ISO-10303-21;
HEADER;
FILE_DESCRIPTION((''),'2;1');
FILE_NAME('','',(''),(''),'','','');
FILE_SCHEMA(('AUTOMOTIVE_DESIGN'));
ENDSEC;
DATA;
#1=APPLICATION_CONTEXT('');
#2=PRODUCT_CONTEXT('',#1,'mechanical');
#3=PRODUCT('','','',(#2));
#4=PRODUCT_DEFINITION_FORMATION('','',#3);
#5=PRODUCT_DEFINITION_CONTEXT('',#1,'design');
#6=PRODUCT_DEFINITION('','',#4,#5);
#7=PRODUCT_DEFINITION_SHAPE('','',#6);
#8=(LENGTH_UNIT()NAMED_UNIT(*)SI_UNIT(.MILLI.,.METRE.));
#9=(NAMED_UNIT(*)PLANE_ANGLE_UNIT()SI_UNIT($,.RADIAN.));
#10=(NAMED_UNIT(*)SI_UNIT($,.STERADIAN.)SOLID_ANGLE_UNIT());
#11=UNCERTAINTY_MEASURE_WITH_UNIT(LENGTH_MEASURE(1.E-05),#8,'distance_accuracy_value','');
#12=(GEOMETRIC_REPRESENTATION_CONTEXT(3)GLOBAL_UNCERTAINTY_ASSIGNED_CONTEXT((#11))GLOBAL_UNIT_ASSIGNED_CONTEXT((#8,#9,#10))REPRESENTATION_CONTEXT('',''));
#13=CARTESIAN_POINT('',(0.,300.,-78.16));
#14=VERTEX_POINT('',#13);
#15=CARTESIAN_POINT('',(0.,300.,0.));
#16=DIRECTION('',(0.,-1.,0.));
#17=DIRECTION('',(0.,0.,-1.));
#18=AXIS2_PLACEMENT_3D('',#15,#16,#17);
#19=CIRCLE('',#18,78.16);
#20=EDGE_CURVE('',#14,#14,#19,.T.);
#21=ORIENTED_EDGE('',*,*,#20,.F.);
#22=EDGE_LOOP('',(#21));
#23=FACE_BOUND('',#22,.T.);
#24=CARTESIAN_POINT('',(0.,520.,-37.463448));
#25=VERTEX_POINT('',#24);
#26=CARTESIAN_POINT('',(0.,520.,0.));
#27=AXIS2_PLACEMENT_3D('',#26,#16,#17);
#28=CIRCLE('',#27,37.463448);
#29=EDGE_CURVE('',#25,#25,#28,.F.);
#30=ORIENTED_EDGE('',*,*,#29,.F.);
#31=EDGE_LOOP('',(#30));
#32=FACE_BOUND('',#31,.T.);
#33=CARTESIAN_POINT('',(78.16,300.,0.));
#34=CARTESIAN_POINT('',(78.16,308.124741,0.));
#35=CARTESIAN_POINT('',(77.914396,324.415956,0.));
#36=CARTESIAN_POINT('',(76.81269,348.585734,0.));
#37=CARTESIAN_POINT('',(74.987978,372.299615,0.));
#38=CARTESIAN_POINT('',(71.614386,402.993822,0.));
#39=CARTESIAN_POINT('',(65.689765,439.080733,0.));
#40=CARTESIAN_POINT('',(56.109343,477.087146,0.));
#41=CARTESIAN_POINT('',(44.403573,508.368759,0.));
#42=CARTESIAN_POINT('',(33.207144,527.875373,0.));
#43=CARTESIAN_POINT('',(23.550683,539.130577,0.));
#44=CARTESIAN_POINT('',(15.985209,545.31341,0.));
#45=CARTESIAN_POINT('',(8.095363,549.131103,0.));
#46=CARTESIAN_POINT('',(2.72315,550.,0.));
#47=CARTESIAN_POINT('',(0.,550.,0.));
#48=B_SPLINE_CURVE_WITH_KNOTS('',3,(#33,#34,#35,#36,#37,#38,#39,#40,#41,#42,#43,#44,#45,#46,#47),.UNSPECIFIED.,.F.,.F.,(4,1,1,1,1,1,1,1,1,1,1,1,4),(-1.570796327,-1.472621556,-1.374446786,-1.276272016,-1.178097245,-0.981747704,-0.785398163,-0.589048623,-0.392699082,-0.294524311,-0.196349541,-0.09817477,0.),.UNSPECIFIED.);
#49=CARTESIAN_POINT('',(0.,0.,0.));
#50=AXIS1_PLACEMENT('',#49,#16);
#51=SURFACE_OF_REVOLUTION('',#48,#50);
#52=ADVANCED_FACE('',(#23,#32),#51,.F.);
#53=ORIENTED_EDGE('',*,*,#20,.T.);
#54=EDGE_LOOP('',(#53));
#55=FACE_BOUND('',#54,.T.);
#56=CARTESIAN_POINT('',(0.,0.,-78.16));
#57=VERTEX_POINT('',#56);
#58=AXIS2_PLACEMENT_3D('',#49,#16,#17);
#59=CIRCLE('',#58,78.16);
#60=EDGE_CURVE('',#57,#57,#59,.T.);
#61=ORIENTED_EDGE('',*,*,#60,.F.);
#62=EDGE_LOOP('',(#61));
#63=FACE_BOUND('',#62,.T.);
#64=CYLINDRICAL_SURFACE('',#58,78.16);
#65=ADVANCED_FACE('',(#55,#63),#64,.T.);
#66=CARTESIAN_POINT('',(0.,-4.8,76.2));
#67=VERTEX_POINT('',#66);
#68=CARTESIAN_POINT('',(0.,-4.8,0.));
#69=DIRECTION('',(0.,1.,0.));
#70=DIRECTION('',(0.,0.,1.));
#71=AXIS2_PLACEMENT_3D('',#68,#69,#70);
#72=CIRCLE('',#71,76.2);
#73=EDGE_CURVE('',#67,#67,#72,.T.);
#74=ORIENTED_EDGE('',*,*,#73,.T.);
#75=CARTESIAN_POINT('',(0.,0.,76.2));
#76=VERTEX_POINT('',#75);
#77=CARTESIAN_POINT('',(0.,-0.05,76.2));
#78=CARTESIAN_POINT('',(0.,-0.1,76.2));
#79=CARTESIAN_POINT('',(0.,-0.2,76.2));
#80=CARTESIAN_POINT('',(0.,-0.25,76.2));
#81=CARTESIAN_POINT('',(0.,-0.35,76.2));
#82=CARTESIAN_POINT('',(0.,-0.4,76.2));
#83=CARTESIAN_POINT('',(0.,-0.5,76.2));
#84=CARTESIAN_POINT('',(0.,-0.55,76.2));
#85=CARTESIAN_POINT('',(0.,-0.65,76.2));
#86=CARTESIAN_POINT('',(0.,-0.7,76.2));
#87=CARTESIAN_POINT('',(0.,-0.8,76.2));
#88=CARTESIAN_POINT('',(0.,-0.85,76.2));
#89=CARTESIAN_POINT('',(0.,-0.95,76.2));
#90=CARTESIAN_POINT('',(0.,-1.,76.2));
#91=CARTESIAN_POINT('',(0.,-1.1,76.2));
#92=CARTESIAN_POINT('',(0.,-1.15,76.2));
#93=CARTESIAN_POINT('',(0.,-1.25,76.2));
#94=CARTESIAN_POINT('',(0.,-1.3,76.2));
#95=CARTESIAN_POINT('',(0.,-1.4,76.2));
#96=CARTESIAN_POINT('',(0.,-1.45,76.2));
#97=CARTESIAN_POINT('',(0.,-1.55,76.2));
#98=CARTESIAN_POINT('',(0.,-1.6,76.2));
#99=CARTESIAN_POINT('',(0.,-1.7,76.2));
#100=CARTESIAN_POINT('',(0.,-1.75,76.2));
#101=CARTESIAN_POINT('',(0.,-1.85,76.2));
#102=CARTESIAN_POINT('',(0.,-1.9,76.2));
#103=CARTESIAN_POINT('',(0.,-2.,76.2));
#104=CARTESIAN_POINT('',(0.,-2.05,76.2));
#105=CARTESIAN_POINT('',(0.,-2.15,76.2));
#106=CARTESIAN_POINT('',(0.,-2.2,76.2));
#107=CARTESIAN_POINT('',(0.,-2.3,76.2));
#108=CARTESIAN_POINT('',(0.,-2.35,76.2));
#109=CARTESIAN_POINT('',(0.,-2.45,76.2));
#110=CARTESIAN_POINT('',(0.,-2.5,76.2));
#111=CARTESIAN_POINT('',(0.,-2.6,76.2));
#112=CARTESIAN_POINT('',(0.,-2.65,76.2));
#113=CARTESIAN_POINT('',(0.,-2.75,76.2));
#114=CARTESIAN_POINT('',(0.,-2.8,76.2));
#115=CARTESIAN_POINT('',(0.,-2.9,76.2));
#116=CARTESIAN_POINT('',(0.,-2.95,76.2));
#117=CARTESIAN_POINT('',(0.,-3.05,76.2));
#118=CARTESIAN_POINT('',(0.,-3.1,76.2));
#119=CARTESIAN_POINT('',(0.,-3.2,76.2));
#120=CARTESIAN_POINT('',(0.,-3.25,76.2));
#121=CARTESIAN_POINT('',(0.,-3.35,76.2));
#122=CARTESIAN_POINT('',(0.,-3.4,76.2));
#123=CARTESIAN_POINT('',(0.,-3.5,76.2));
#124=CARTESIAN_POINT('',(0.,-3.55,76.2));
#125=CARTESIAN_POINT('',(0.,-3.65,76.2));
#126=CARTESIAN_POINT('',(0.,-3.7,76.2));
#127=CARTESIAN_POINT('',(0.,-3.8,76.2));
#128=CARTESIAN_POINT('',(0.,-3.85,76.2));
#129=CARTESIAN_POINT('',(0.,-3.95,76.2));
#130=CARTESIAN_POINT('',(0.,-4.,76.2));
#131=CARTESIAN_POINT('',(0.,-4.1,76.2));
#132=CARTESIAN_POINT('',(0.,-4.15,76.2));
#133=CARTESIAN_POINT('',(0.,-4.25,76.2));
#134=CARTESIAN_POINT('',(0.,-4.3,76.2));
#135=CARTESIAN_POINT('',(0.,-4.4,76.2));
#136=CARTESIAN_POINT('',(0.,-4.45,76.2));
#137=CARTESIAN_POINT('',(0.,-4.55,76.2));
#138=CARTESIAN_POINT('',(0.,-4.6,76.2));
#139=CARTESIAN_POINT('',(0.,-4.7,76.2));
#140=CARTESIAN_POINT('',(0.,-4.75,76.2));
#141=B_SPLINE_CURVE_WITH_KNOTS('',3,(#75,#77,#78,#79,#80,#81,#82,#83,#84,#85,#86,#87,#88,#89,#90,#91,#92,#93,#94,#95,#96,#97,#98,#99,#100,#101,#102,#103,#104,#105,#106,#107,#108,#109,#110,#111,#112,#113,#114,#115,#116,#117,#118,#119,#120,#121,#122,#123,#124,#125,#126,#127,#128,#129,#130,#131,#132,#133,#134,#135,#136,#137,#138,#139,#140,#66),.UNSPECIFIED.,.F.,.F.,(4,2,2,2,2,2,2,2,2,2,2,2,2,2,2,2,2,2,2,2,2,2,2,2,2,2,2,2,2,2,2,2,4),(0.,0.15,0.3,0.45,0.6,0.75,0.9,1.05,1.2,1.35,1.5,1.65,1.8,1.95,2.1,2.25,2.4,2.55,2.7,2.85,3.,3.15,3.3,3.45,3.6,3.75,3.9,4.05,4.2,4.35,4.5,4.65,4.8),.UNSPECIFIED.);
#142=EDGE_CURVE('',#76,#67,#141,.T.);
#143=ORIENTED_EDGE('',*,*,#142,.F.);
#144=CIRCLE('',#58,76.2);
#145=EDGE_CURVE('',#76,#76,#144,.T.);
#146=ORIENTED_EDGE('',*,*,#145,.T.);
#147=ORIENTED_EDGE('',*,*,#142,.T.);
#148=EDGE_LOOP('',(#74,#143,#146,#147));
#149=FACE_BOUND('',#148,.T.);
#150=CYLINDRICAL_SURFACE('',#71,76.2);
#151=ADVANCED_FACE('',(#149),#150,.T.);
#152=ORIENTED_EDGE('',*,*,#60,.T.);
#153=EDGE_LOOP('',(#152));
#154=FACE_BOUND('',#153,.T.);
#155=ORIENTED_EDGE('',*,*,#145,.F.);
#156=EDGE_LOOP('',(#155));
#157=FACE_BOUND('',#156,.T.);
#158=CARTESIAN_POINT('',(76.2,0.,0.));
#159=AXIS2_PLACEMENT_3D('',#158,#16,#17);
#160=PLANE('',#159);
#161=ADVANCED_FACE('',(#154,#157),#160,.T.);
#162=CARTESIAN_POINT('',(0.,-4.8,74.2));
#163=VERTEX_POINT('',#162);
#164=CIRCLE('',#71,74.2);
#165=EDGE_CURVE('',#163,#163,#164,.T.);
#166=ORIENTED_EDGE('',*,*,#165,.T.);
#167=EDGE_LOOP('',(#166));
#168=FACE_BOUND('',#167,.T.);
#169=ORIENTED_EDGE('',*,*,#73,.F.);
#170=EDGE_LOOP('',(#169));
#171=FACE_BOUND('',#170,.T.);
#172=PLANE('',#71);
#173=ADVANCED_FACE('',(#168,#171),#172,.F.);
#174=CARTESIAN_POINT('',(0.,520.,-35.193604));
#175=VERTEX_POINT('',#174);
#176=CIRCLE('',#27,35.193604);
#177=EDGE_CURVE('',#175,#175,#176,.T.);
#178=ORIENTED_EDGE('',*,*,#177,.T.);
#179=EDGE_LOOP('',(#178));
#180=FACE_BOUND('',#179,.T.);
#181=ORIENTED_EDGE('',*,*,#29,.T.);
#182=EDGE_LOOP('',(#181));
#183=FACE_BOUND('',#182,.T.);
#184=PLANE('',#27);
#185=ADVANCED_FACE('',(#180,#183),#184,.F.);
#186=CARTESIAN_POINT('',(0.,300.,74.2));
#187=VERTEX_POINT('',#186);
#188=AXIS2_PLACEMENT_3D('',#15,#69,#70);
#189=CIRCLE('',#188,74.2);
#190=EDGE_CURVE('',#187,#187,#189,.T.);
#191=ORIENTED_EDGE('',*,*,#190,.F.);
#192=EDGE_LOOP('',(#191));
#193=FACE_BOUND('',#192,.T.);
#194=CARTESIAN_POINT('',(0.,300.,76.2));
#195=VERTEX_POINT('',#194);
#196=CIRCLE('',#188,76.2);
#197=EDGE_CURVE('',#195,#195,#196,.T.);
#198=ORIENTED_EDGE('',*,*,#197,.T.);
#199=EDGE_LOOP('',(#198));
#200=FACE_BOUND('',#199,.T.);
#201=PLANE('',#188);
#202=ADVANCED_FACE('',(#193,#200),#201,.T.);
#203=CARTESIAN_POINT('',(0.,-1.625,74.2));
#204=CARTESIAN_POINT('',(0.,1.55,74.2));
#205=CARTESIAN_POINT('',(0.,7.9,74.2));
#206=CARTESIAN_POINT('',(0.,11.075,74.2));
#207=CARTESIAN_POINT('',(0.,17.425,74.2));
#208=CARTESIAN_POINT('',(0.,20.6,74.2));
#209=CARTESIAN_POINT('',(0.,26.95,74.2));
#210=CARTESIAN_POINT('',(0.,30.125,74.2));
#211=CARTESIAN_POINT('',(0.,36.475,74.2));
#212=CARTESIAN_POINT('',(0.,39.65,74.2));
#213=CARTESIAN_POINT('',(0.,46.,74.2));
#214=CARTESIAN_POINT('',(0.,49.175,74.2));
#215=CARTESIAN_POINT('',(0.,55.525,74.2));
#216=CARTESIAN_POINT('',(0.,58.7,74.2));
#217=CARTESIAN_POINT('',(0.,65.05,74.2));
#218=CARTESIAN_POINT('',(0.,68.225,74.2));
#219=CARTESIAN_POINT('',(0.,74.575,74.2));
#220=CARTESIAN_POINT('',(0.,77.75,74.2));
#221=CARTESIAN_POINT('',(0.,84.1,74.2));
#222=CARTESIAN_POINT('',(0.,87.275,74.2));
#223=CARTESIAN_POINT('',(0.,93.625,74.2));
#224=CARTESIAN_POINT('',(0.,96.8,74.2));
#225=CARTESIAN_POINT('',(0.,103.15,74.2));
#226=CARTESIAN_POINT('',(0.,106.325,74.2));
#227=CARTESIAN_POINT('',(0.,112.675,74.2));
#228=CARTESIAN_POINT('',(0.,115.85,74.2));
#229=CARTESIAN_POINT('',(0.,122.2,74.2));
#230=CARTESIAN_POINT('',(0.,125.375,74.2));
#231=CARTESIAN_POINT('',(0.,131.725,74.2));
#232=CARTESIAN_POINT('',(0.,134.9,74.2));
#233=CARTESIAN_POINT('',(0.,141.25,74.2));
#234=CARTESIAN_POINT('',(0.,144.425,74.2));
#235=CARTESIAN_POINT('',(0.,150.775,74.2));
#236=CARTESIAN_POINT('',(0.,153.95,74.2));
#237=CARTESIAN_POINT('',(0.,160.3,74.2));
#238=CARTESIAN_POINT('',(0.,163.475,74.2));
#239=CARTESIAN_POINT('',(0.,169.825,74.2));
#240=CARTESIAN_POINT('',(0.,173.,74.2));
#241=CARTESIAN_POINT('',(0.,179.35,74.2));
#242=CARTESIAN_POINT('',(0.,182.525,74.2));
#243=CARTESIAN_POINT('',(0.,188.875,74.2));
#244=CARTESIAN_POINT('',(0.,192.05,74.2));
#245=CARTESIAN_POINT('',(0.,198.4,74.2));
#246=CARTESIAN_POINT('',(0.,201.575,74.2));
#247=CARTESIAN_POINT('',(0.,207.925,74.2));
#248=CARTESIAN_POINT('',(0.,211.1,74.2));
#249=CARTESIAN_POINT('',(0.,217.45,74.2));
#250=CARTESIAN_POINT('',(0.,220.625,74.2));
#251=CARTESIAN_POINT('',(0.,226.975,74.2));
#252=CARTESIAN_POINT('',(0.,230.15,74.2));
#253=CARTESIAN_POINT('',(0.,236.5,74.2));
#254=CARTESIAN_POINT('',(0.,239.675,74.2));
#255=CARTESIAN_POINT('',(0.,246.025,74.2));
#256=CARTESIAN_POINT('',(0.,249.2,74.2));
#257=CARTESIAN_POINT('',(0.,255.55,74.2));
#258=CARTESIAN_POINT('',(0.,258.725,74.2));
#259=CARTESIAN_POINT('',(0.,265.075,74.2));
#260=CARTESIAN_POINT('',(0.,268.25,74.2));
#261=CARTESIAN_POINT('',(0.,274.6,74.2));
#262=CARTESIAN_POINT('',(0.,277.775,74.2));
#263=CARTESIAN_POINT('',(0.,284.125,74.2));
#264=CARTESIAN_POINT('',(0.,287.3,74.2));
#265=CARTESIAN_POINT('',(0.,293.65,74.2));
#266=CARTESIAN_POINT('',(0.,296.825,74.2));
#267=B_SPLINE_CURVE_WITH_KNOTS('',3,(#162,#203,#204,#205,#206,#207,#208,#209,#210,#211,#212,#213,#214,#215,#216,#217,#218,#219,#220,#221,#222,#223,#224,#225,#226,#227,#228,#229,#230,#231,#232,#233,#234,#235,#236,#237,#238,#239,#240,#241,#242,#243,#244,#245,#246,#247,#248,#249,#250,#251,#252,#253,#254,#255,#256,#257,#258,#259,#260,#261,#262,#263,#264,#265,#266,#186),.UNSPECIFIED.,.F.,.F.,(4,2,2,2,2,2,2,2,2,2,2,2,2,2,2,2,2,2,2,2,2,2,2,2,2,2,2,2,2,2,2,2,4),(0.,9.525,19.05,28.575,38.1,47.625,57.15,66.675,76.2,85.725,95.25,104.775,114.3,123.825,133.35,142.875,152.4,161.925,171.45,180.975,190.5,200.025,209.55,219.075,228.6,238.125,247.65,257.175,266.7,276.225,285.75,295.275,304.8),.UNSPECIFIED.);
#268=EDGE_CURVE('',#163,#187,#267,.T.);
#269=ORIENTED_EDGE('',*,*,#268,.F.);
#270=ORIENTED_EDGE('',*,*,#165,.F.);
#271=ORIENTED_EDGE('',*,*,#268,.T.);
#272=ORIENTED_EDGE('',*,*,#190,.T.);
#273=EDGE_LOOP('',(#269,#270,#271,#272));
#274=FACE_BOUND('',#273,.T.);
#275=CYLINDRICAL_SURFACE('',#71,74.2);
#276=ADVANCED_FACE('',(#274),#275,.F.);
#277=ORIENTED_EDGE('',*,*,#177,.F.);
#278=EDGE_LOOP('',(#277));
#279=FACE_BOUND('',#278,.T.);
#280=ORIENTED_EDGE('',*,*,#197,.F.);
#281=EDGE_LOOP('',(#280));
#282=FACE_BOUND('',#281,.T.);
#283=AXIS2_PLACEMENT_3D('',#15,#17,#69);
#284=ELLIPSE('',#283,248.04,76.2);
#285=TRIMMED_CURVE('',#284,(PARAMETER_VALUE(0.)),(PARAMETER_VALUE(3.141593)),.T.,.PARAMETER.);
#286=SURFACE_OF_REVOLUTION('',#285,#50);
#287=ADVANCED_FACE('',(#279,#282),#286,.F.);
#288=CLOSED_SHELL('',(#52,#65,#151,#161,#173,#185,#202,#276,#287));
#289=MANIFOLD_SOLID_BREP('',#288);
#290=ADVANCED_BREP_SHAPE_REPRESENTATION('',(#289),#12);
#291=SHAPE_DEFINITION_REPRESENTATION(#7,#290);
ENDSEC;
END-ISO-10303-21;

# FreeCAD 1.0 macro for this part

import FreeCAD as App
import Part
import Sketcher

V = App.Vector

doc = App.newDocument("Part")
params = doc.addObject("Spreadsheet::Sheet", "Params")
for row, (alias, value) in enumerate([
    ("revolution_angle", "360 deg"),
    ("sketch2_diameter", "152.4 mm"),
    ("sketch2_diameter2", "148.4 mm"),
    ("pad1_length", "304.8 mm"),
    ("pocket1_length", "30 mm"),
], start=1):
    params.set(f"A{row}", alias)
    params.set(f"B{row}", "=" + value)
    params.setAlias(f"B{row}", alias)

body = doc.addObject("PartDesign::Body", "Body")

sketch1 = body.newObject("Sketcher::SketchObject", "Sketch")
sketch1.AttachmentSupport = (doc.getObject("XY_Plane"), [""])
sketch1.MapMode = "FlatFace"
sketch1.addGeometry(Part.LineSegment(V(76.2, 300, 0), V(76.2, 0, 0)), False)
sketch1.addGeometry(Part.LineSegment(V(76.2, 0, 0), V(78.16, 0, 0)), False)
sketch1.addGeometry(Part.LineSegment(V(78.16, 0, 0), V(78.16, 300, 0)), False)
sketch1.addGeometry(Part.BSplineCurve([V(0, 550, 0), V(2.72315, 550, 0), V(8.095363, 549.131103, 0), V(15.985209, 545.31341, 0), V(23.550683, 539.130577, 0), V(33.207144, 527.875373, 0), V(44.403573, 508.368759, 0), V(56.109343, 477.087146, 0), V(65.689765, 439.080733, 0), V(71.614386, 402.993822, 0), V(74.987978, 372.299615, 0), V(76.81269, 348.585734, 0), V(77.914396, 324.415956, 0), V(78.16, 308.124741, 0), V(78.16, 300, 0)], [4, 1, 1, 1, 1, 1, 1, 1, 1, 1, 1, 1, 4], [-1.570796327, -1.472621556, -1.374446786, -1.276272016, -1.178097245, -0.981747704, -0.785398163, -0.589048623, -0.392699082, -0.294524311, -0.196349541, -0.09817477, 0], False, 3, [1, 1, 1, 1, 1, 1, 1, 1, 1, 1, 1, 1, 1, 1, 1], False), False)
sketch1.addGeometry(Part.LineSegment(V(0, 550, 0), V(0, 548.04, 0)), False)
sketch1.addGeometry(Part.BSplineCurve([V(76.2, 300, 0), V(76.2, 548.04, 0), V(0, 548.04, 0)], [3, 3], [1.570796327, 3.141592654], False, 2, [1, 0.707106781, 1], False), False)
sketch1.addConstraint(Sketcher.Constraint("Block", 3))
sketch1.addConstraint(Sketcher.Constraint("Block", 5))
sketch1.addConstraint(Sketcher.Constraint("Coincident", 0, 2, 1, 1))
sketch1.addConstraint(Sketcher.Constraint("Coincident", 1, 2, 2, 1))
sketch1.addConstraint(Sketcher.Constraint("Coincident", 2, 2, 3, 2))
sketch1.addConstraint(Sketcher.Constraint("Coincident", 3, 1, 4, 1))
sketch1.addConstraint(Sketcher.Constraint("Coincident", 4, 2, 5, 2))
sketch1.addConstraint(Sketcher.Constraint("Coincident", 5, 1, 0, 1))
sketch1.addConstraint(Sketcher.Constraint("Vertical", 0))
sketch1.addConstraint(Sketcher.Constraint("Horizontal", 1))
sketch1.addConstraint(Sketcher.Constraint("Vertical", 2))
sketch1.addConstraint(Sketcher.Constraint("PointOnObject", 0, 2, -1))
revolution = body.newObject("PartDesign::Revolution", "Revolution")
revolution.Profile = sketch1
revolution.ReferenceAxis = (sketch1, ["V_Axis"])
revolution.setExpression("Angle", "Params.revolution_angle")

sketch2 = body.newObject("Sketcher::SketchObject", "Sketch001")
sketch2.AttachmentSupport = (doc.getObject("XZ_Plane"), [""])
sketch2.MapMode = "FlatFace"
sketch2.AttachmentOffset = App.Placement(V(0, 0, 4.8), App.Rotation())
sketch2.addGeometry(Part.Circle(V(0, 0, 0), V(0, 0, 1), 76), False)
sketch2.addGeometry(Part.Circle(V(0, 0, 0), V(0, 0, 1), 74), False)
sketch2.addConstraint(Sketcher.Constraint("Coincident", 0, 3, -1, 1))
sketch2.addConstraint(Sketcher.Constraint("Coincident", 1, 3, -1, 1))
sketch2.addConstraint(Sketcher.Constraint("Diameter", 0, 152.4))
sketch2.addConstraint(Sketcher.Constraint("Diameter", 1, 148.4))
sketch2.setExpression("Constraints[2]", "Params.sketch2_diameter")
sketch2.setExpression("Constraints[3]", "Params.sketch2_diameter2")
pad1 = body.newObject("PartDesign::Pad", "Pad")
pad1.Profile = sketch2
pad1.setExpression("Length", "Params.pad1_length")
pad1.Reversed = True

sketch3 = body.newObject("Sketcher::SketchObject", "Sketch002")
sketch3.AttachmentSupport = (doc.getObject("XZ_Plane"), [""])
sketch3.MapMode = "FlatFace"
sketch3.AttachmentOffset = App.Placement(V(0, 0, -550), App.Rotation())
sketch3.addGeometry(Part.Circle(V(0, 0, 0), V(0, 0, 1), 102), False)
sketch3.addConstraint(Sketcher.Constraint("Coincident", 0, 3, -1, 1))
sketch3.addConstraint(Sketcher.Constraint("Diameter", 0, 204.267974))
pocket1 = body.newObject("PartDesign::Pocket", "Pocket")
pocket1.Profile = sketch3
pocket1.setExpression("Length", "Params.pocket1_length")
pocket1.Reversed = True

doc.recompute()
